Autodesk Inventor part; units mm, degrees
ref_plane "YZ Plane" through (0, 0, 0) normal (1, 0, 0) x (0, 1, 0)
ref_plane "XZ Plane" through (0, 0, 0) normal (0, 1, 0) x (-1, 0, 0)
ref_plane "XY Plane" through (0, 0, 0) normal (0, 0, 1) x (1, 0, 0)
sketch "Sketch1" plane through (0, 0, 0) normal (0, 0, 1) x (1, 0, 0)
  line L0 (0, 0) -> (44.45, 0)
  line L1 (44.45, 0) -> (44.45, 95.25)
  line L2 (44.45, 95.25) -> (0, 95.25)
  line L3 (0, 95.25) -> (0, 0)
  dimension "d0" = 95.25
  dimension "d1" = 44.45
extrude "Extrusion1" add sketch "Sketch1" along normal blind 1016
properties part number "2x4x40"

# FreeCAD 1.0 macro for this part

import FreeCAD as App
import Part
import Sketcher
from FreeCAD import Vector
Q = App.Units.Quantity


def add_polygon(sketch, points):
    """Adds a closed chain of lines whose ends are joined by coincident constraints."""
    first, n = sketch.GeometryCount, len(points)
    for a, b in zip(points, points[1:] + points[:1]):
        sketch.addGeometry(Part.LineSegment(App.Vector(*a, 0), App.Vector(*b, 0)), False)
    for i in range(n):
        sketch.addConstraint(Sketcher.Constraint("Coincident", first + i, 2, first + (i + 1) % n, 1))

doc = App.newDocument("Part")
body = doc.addObject("PartDesign::Body", "Body")

sketch1 = body.newObject("Sketcher::SketchObject", "Sketch")
sketch1.AttachmentSupport = (doc.getObject("XY_Plane"), [""])
sketch1.MapMode = "FlatFace"
add_polygon(sketch1, [(0, 95), (0, 0), (44, 0), (44, 95)])
sketch1.addConstraint([
    Sketcher.Constraint("Vertical", 0),
    Sketcher.Constraint("Horizontal", 1),
    Sketcher.Constraint("Vertical", 2),
    Sketcher.Constraint("Horizontal", 3),
    Sketcher.Constraint("Coincident", 0, 2, -1, 1),
    Sketcher.Constraint("DistanceX", 1, 1, 1, 2, Q("1.75 in")),
    Sketcher.Constraint("DistanceY", 0, 2, 0, 1, Q("3.75 in")),
])
pad1 = body.newObject("PartDesign::Pad", "Pad")
pad1.Profile = sketch1
pad1.Length = Q("40 in")

doc.recompute()
